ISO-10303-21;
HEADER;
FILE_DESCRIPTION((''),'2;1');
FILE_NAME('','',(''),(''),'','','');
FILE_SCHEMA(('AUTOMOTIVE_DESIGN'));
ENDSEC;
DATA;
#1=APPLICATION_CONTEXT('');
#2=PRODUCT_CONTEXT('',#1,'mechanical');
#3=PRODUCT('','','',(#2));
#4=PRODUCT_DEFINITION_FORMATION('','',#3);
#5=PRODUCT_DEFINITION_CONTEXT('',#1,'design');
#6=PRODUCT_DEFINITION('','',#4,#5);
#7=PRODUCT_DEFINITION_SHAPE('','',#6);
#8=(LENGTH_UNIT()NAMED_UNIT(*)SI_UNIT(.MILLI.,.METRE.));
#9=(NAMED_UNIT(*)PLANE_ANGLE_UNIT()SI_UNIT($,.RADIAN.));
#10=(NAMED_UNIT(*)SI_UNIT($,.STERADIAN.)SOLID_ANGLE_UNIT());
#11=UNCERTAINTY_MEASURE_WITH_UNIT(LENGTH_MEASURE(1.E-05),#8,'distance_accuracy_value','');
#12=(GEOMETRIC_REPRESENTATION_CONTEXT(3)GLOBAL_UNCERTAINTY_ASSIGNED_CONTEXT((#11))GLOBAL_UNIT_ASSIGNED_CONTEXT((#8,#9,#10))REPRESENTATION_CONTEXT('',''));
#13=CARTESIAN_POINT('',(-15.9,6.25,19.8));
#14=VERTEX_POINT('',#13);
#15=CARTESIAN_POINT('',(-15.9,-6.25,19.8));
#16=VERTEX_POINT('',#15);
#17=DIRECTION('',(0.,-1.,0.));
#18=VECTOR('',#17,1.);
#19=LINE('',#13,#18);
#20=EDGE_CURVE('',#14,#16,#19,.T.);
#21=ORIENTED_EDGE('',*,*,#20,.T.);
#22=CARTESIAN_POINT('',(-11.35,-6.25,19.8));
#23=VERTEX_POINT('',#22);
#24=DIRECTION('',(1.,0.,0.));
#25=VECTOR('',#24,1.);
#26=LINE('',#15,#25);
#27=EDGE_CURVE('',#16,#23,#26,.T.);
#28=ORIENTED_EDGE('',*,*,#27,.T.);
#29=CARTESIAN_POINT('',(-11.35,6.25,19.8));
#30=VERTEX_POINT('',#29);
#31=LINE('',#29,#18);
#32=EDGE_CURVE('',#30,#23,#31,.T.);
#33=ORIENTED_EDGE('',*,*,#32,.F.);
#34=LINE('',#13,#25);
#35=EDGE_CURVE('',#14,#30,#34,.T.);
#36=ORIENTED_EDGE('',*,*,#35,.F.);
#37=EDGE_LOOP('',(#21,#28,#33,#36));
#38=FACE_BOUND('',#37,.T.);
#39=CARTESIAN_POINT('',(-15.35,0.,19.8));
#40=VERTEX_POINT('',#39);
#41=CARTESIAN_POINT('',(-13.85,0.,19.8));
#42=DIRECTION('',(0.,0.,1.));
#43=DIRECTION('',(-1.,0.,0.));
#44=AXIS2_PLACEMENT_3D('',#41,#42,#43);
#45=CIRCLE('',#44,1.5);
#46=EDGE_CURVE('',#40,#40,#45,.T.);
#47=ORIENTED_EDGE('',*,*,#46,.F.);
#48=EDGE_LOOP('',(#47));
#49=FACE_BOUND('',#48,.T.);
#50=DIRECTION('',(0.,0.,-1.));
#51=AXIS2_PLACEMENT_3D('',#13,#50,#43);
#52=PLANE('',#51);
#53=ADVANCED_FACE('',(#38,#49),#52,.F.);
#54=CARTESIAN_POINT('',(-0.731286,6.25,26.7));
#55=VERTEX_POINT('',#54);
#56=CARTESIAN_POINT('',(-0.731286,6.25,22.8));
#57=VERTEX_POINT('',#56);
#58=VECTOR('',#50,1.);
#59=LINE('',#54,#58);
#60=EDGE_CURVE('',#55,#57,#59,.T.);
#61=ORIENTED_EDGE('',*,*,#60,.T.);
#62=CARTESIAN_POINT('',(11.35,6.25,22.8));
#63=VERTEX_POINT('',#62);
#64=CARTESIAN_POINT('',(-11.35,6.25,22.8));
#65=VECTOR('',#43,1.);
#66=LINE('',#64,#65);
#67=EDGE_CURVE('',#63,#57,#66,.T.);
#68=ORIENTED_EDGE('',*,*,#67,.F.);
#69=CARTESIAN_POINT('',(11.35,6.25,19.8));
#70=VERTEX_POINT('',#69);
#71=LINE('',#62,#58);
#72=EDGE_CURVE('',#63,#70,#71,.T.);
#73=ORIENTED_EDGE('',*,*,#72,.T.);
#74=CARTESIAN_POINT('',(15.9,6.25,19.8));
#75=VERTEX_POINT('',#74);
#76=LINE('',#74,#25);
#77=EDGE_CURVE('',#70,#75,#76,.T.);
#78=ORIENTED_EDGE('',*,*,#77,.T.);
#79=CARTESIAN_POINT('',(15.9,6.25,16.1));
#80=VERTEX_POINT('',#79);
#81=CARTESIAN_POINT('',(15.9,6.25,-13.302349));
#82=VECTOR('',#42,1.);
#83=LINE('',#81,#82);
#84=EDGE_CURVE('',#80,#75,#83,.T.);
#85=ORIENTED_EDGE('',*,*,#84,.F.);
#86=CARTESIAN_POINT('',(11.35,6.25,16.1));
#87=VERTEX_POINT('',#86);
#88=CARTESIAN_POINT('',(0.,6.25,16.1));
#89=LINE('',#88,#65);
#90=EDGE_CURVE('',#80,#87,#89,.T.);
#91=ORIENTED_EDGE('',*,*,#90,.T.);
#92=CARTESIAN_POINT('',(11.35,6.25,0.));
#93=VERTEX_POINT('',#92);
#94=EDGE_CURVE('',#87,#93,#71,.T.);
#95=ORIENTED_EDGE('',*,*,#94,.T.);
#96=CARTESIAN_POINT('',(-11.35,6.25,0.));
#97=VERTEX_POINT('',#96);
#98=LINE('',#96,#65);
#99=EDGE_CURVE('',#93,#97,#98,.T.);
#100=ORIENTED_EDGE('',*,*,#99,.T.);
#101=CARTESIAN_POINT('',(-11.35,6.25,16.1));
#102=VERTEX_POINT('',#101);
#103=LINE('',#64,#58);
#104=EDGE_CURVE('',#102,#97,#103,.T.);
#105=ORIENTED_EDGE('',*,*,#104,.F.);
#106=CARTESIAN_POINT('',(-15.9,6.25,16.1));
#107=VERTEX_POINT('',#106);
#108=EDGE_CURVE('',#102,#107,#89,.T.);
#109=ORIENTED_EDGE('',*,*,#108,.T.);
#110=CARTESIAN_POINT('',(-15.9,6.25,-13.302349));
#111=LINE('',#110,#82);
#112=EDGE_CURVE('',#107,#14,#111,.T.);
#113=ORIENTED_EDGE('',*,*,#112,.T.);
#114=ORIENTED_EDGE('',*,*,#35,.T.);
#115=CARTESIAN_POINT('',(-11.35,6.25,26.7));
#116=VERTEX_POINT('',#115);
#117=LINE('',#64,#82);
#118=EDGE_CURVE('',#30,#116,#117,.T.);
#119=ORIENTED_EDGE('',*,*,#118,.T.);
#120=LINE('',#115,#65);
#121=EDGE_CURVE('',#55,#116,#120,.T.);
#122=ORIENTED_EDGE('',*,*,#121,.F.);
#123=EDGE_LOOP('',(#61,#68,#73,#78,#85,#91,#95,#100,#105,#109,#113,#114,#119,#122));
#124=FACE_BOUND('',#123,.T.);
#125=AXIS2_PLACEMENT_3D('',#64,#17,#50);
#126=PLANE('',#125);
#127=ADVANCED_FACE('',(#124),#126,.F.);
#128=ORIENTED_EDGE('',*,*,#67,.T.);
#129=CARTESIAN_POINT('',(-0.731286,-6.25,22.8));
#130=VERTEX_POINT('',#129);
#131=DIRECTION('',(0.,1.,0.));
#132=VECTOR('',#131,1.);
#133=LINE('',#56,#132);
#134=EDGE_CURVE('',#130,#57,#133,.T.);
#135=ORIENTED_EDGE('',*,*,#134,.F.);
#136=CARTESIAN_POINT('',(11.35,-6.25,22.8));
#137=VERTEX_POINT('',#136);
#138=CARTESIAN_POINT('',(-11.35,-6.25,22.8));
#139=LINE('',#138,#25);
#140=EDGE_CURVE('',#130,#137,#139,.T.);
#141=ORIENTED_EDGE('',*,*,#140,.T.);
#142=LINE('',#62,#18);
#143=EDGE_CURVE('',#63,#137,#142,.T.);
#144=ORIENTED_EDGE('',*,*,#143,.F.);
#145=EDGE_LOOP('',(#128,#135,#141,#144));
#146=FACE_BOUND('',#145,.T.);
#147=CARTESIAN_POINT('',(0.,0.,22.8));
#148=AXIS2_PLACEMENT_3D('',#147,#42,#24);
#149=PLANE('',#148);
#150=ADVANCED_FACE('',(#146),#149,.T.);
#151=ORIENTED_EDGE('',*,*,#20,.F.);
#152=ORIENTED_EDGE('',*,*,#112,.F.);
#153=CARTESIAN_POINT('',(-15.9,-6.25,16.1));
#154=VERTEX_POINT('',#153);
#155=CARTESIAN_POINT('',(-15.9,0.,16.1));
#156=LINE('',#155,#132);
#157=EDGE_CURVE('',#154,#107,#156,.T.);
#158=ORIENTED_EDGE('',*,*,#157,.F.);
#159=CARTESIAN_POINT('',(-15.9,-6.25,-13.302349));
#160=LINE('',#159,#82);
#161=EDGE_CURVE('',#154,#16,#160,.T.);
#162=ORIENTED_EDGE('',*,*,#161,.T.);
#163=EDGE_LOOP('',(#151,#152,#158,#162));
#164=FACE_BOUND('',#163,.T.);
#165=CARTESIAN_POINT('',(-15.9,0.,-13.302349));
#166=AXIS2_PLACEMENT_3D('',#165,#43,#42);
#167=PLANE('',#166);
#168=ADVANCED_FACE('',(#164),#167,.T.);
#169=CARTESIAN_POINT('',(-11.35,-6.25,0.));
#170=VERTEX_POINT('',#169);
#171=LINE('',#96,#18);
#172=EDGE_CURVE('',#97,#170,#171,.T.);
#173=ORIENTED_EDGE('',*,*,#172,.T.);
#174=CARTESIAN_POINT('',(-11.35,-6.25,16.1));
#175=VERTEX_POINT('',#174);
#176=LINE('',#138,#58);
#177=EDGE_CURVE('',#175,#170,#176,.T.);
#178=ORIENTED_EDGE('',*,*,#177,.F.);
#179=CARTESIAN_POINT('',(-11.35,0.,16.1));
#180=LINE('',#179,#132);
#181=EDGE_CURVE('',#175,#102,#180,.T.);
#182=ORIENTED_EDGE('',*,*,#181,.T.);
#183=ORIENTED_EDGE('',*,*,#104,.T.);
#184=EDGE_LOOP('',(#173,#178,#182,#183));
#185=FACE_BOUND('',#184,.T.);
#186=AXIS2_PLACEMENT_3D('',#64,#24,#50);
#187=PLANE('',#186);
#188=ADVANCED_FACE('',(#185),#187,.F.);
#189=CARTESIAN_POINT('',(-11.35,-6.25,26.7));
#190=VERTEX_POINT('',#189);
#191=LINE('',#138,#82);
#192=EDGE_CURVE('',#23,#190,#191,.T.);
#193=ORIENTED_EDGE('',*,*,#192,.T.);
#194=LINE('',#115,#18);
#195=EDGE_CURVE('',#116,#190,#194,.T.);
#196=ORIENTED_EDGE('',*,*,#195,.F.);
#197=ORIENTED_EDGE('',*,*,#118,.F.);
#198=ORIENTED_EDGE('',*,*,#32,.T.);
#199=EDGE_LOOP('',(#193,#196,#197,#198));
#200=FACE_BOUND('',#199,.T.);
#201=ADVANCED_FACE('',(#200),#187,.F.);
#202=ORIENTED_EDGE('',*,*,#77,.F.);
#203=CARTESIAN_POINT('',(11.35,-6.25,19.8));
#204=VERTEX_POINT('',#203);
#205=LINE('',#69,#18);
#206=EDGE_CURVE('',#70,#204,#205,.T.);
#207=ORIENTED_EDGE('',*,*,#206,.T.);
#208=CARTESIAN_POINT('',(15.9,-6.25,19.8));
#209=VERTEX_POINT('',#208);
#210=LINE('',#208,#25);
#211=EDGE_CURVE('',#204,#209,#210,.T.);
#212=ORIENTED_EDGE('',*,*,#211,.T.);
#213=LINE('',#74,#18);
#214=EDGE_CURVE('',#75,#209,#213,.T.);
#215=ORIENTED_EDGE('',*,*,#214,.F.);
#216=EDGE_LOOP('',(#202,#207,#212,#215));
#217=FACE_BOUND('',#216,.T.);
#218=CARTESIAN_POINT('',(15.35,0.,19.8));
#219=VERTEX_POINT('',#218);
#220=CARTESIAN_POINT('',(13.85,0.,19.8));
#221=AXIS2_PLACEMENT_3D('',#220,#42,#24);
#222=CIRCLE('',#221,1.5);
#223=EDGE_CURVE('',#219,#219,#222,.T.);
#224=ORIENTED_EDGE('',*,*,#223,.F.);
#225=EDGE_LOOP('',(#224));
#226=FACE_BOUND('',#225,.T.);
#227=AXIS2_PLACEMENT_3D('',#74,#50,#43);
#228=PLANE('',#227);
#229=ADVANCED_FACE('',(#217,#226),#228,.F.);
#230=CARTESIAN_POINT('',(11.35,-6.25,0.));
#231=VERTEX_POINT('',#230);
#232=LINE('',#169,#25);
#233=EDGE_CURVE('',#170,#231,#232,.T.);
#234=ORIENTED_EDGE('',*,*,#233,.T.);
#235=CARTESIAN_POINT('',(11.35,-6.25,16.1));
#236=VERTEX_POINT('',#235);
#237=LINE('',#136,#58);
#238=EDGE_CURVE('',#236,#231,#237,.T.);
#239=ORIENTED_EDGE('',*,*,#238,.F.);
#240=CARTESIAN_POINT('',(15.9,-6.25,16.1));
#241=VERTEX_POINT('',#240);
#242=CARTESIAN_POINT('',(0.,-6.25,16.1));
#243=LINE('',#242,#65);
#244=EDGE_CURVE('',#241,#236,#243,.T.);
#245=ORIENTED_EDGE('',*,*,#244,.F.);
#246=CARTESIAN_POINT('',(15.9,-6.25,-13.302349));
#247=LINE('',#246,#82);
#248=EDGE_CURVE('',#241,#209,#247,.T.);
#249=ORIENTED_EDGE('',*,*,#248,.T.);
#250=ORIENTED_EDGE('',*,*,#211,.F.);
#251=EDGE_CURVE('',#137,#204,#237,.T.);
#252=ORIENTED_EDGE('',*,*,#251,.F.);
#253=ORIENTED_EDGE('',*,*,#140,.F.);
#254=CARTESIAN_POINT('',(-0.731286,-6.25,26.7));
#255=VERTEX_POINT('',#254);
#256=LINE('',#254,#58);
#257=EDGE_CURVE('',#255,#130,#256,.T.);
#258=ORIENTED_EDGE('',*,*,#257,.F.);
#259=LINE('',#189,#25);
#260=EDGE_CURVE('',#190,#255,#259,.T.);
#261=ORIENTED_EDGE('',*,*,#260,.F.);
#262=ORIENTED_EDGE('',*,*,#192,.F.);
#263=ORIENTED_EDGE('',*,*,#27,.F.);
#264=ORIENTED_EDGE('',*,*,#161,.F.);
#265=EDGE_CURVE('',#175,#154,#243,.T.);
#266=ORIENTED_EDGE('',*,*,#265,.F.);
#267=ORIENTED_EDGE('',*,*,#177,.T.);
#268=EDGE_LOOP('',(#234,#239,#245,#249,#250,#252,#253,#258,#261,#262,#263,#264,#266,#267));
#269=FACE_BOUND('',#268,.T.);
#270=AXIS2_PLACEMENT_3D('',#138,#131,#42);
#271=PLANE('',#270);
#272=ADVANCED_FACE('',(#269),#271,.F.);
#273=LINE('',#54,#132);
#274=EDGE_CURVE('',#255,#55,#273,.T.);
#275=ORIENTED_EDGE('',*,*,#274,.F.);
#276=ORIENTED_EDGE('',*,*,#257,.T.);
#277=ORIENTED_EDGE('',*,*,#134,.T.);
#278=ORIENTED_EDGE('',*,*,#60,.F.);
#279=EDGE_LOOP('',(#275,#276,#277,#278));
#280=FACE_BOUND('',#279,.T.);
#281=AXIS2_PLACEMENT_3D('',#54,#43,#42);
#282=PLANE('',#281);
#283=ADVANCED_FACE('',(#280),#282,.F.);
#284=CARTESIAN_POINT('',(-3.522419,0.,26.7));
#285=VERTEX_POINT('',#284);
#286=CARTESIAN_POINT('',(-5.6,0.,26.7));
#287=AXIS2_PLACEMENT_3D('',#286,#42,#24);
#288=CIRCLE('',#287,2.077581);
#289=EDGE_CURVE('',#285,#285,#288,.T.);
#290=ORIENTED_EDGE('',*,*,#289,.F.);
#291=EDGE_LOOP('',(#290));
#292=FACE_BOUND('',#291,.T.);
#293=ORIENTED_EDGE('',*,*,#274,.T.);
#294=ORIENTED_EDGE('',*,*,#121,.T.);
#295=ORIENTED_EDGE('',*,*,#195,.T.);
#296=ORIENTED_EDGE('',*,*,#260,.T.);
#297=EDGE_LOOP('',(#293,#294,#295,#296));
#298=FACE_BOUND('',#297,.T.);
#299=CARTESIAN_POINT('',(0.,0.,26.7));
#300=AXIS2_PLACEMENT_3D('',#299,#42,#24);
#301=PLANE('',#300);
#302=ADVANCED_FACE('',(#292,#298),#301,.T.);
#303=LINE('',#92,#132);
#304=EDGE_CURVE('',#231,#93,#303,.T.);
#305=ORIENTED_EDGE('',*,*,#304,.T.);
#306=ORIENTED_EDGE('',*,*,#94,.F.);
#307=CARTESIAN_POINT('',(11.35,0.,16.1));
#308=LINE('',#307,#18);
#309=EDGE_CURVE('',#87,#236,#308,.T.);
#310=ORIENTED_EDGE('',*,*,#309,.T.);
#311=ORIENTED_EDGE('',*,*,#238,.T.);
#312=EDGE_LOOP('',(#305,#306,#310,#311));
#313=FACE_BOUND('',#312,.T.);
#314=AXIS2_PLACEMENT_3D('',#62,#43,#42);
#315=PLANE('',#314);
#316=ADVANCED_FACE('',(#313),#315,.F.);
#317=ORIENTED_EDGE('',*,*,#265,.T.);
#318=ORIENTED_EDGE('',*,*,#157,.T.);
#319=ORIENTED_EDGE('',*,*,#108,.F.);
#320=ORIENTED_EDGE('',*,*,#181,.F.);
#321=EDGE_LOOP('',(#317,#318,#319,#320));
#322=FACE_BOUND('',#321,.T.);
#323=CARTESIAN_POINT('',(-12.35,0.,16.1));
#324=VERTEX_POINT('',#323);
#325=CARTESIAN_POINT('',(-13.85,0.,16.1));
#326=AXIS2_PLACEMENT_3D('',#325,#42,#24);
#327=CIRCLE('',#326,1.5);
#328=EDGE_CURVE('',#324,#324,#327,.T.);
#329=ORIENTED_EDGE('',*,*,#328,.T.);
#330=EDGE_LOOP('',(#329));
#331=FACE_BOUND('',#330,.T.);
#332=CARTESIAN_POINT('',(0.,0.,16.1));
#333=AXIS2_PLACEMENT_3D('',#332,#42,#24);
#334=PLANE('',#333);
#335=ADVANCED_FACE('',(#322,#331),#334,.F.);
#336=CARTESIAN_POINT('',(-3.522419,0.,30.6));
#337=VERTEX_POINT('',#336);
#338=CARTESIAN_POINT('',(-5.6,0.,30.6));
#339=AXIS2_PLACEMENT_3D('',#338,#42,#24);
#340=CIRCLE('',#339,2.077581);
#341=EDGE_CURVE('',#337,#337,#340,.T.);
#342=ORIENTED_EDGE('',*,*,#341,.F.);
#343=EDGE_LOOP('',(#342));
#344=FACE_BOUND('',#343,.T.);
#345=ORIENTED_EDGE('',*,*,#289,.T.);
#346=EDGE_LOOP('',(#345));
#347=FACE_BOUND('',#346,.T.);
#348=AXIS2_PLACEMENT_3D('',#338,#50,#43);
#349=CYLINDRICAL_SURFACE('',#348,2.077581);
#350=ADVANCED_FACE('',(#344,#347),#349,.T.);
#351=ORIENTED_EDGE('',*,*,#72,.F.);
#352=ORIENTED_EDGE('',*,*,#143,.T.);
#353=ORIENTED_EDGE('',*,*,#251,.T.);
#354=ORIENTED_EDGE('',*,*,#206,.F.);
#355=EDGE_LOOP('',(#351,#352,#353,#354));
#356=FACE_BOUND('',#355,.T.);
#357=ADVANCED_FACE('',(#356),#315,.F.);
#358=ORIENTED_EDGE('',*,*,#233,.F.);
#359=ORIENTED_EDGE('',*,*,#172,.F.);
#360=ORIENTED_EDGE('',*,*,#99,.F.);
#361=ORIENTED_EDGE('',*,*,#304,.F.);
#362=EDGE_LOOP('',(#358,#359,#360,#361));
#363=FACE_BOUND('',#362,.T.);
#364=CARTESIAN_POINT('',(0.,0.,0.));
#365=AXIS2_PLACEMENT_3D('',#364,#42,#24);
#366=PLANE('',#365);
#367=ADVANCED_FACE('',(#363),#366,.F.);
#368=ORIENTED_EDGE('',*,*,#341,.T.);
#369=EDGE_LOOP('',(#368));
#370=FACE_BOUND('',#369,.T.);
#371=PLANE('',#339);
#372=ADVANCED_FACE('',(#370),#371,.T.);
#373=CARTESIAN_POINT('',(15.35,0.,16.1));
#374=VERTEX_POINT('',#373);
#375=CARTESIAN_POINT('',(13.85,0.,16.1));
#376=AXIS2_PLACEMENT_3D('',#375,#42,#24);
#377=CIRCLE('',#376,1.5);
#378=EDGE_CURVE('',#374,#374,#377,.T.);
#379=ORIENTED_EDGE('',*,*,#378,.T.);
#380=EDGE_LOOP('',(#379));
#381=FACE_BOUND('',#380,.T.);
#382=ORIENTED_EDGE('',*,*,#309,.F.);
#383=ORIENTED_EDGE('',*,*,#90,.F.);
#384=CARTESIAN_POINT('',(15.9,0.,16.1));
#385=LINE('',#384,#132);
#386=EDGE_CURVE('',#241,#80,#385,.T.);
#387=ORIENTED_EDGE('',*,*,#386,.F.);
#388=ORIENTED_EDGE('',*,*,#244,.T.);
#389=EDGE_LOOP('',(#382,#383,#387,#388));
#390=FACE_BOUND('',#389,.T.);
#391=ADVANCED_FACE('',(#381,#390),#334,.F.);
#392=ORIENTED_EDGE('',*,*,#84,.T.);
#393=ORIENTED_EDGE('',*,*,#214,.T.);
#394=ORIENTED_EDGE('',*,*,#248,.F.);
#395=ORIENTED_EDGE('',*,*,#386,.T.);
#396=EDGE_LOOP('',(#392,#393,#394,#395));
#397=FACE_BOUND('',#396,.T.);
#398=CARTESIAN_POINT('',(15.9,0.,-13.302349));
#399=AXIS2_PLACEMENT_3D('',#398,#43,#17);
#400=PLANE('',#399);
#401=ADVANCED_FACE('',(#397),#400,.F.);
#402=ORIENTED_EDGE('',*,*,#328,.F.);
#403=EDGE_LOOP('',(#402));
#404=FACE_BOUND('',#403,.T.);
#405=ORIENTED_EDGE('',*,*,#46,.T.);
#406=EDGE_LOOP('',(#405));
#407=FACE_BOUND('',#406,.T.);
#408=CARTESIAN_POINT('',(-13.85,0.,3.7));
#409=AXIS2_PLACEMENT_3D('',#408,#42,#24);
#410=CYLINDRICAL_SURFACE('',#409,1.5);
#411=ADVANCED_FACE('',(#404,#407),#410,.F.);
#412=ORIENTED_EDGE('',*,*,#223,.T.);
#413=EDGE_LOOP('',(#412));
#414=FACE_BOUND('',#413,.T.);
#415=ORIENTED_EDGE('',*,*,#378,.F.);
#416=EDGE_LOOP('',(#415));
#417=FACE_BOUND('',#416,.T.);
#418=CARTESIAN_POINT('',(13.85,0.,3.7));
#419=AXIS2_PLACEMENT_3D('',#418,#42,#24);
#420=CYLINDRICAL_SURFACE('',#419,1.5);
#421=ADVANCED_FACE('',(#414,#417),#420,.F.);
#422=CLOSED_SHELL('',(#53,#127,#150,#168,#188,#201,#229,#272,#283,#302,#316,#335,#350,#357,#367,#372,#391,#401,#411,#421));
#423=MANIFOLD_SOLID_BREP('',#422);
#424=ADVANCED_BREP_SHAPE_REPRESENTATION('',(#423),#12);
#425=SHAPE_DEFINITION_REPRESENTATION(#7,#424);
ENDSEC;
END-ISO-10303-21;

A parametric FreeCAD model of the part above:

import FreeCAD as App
import Part
import Sketcher
from FreeCAD import Vector
Q = App.Units.Quantity


def add_polygon(sketch, points):
    """Adds a closed chain of lines whose ends are joined by coincident constraints."""
    first, n = sketch.GeometryCount, len(points)
    for a, b in zip(points, points[1:] + points[:1]):
        sketch.addGeometry(Part.LineSegment(App.Vector(*a, 0), App.Vector(*b, 0)), False)
    for i in range(n):
        sketch.addConstraint(Sketcher.Constraint("Coincident", first + i, 2, first + (i + 1) % n, 1))

doc = App.newDocument("Part")
body = doc.addObject("PartDesign::Body", "Body")

sketch1 = body.newObject("Sketcher::SketchObject", "Sketch")
sketch1.AttachmentSupport = (doc.getObject("XY_Plane"), [""])
sketch1.MapMode = "FlatFace"
add_polygon(sketch1, [(-11.35, 6.25), (-11.35, -6.25), (11.35, -6.25), (11.35, 6.25)])
sketch1.addConstraint([
    Sketcher.Constraint("Vertical", 0),
    Sketcher.Constraint("Horizontal", 1),
    Sketcher.Constraint("Vertical", 2),
    Sketcher.Constraint("Horizontal", 3),
    Sketcher.Constraint("Symmetric", 0, 2, 2, 2, -1, 1),
    Sketcher.Constraint("DistanceX", 1, 1, 1, 2, Q("22.7 mm")),
    Sketcher.Constraint("DistanceY", 0, 2, 0, 1, Q("12.5 mm")),
])
pad1 = body.newObject("PartDesign::Pad", "Pad")
pad1.Profile = sketch1
pad1.Length = 22.8

sketch2 = body.newObject("Sketcher::SketchObject", "Sketch001")
sketch2.AttachmentSupport = (doc.getObject("XY_Plane"), [""])
sketch2.MapMode = "FlatFace"
sketch2.AttachmentOffset = App.Placement(Vector(0, 0, 22.8), App.Rotation())
add_polygon(sketch2, [(-15.9, 6.25), (-15.9, -6.25), (-11.35, -6.25), (-11.35, 6.25)])
add_polygon(sketch2, [(11.35, 6.25), (11.35, -6.25), (15.9, -6.25), (15.9, 6.25)])
sketch2.addConstraint([
    Sketcher.Constraint("Vertical", 0),
    Sketcher.Constraint("Horizontal", 1),
    Sketcher.Constraint("Vertical", 2),
    Sketcher.Constraint("Horizontal", 3),
    Sketcher.Constraint("Vertical", 4),
    Sketcher.Constraint("Horizontal", 5),
    Sketcher.Constraint("Vertical", 6),
    Sketcher.Constraint("Horizontal", 7),
    Sketcher.Constraint("Symmetric", 2, 2, 4, 2, -1, 1),
    Sketcher.Constraint("Symmetric", 0, 2, 6, 2, -1, 1),
    Sketcher.Constraint("Horizontal", 1, 2, 4, 2),
    Sketcher.Constraint("DistanceY", 0, 2, 0, 1, Q("12.5 mm")),
    Sketcher.Constraint("DistanceX", 1, 1, 1, 2, Q("4.55 mm")),
    Sketcher.Constraint("DistanceX", 0, 2, -1, 1, Q("15.9 mm")),
])
pad2 = body.newObject("PartDesign::Pad", "Pad001")
pad2.Profile = sketch2
pad2.Length = 6.7
pad2.Reversed = True

sketch3 = body.newObject("Sketcher::SketchObject", "Sketch002")
sketch3.AttachmentSupport = (doc.getObject("XZ_Plane"), [""])
sketch3.MapMode = "FlatFace"
sketch3.AttachmentOffset = App.Placement(Vector(0, 0, 6.25), App.Rotation())
add_polygon(sketch3, [(-15.9, 22.8), (-15.9, 19.8), (-11.35, 19.8), (-11.35, 22.8)])
add_polygon(sketch3, [(11.35, 22.8), (11.35, 19.8), (15.9, 19.8), (15.9, 22.8)])
sketch3.addConstraint([
    Sketcher.Constraint("Vertical", 0),
    Sketcher.Constraint("Horizontal", 1),
    Sketcher.Constraint("Vertical", 2),
    Sketcher.Constraint("Horizontal", 3),
    Sketcher.Constraint("Vertical", 4),
    Sketcher.Constraint("Horizontal", 5),
    Sketcher.Constraint("Vertical", 6),
    Sketcher.Constraint("Horizontal", 7),
    Sketcher.Constraint("Symmetric", 1, 2, 4, 2, -2),
    Sketcher.Constraint("Symmetric", 3, 2, 6, 2, -2),
    Sketcher.Constraint("DistanceY", 0, 2, 0, 1, Q("3 mm")),
    Sketcher.Constraint("DistanceX", 1, 1, 1, 2, Q("4.55 mm")),
    Sketcher.Constraint("DistanceX", 0, 2, -1, 1, Q("15.9 mm")),
    Sketcher.Constraint("DistanceY", -1, 1, 0, 2, Q("19.8 mm")),
])
pocket1 = body.newObject("PartDesign::Pocket", "Pocket")
pocket1.Profile = sketch3
pocket1.Type = "ThroughAll"

sketch4 = body.newObject("Sketcher::SketchObject", "Sketch003")
sketch4.AttachmentSupport = (doc.getObject("XY_Plane"), [""])
sketch4.MapMode = "FlatFace"
sketch4.AttachmentOffset = App.Placement(Vector(0, 0, 19.8), App.Rotation())
sketch4.addGeometry([
    Part.Circle(Vector(13.85, 0, 0), Vector(0, 0, 1), 1.5),
    Part.Circle(Vector(-13.85, 0, 0), Vector(0, 0, 1), 1.5),
], False)
sketch4.addConstraint([
    Sketcher.Constraint("Equal", 0, 1),
    Sketcher.Constraint("Symmetric", 0, 3, 1, 3, -1, 1),
    Sketcher.Constraint("PointOnObject", 0, 3, -1),
    Sketcher.Constraint("Diameter", 0, Q("3 mm")),
    Sketcher.Constraint("DistanceX", 1, 3, 0, 3, Q("27.7 mm")),
])
pocket2 = body.newObject("PartDesign::Pocket", "Pocket001")
pocket2.Profile = sketch4
pocket2.Length = 16.1

sketch5 = body.newObject("Sketcher::SketchObject", "Sketch004")
sketch5.AttachmentSupport = (doc.getObject("XY_Plane"), [""])
sketch5.MapMode = "FlatFace"
sketch5.AttachmentOffset = App.Placement(Vector(0, 0, 22.8), App.Rotation())
add_polygon(sketch5, [(-11.35, 6.25), (-11.35, -6.25), (-0.731286, -6.25), (-0.731286, 6.25)])
sketch5.addConstraint([
    Sketcher.Constraint("Vertical", 0),
    Sketcher.Constraint("Horizontal", 1),
    Sketcher.Constraint("Vertical", 2),
    Sketcher.Constraint("Horizontal", 3),
    Sketcher.Constraint("DistanceY", 0, 2, 0, 1, Q("12.5 mm")),
    Sketcher.Constraint("DistanceX", 0, 2, -1, 1, Q("11.35 mm")),
    Sketcher.Constraint("DistanceY", 0, 2, -1, 1, Q("6.25 mm")),
    Sketcher.Constraint("DistanceX", 1, 1, 1, 2, Q("10.618714 mm")),
])
pad3 = body.newObject("PartDesign::Pad", "Pad002")
pad3.Profile = sketch5
pad3.Length = 3.9

sketch6 = body.newObject("Sketcher::SketchObject", "Sketch005")
sketch6.AttachmentSupport = (doc.getObject("XY_Plane"), [""])
sketch6.MapMode = "FlatFace"
sketch6.AttachmentOffset = App.Placement(Vector(0, 0, 26.7), App.Rotation())
sketch6.addGeometry(Part.Circle(Vector(-5.6, 0, 0), Vector(0, 0, 1), 2.077581), False)
sketch6.addConstraint([
    Sketcher.Constraint("PointOnObject", 0, 3, -1),
    Sketcher.Constraint("DistanceX", 0, 3, -1, 1, Q("5.6 mm")),
    Sketcher.Constraint("Diameter", 0, Q("4.155163 mm")),
])
pad4 = body.newObject("PartDesign::Pad", "Pad003")
pad4.Profile = sketch6
pad4.Length = 3.9

doc.recompute()
